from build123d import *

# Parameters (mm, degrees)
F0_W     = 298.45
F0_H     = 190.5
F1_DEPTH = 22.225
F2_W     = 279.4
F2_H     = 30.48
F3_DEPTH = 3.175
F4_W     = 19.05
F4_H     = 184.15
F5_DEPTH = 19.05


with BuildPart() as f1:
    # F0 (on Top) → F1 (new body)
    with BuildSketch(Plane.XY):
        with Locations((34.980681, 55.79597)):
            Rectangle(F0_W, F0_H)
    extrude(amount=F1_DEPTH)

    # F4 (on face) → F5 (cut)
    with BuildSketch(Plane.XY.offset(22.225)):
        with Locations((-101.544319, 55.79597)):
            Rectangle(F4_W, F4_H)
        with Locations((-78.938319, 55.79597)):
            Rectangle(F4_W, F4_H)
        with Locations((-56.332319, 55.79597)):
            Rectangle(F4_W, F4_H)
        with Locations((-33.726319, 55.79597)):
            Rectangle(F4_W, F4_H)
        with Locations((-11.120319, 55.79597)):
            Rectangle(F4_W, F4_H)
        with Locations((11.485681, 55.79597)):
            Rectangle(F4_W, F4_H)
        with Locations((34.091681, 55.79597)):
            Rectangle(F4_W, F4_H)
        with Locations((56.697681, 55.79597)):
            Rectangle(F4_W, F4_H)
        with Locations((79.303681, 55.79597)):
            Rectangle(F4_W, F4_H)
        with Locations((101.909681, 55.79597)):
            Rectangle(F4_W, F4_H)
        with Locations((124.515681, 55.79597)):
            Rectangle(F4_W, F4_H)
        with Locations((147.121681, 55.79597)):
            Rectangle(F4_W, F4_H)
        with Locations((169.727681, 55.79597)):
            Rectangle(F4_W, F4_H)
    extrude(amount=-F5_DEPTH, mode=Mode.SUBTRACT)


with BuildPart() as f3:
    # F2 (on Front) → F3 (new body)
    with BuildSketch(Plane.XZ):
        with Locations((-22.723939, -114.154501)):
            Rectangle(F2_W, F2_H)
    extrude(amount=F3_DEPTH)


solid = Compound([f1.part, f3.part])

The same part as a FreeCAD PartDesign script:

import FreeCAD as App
import Part
import Sketcher
Q = App.Units.Quantity


def add_polygon(sketch, points):
    """Adds a closed chain of lines whose ends are joined by coincident constraints."""
    first, n = sketch.GeometryCount, len(points)
    for a, b in zip(points, points[1:] + points[:1]):
        sketch.addGeometry(Part.LineSegment(App.Vector(*a, 0), App.Vector(*b, 0)), False)
    for i in range(n):
        sketch.addConstraint(Sketcher.Constraint("Coincident", first + i, 2, first + (i + 1) % n, 1))

doc = App.newDocument("Part")
body = doc.addObject("PartDesign::Body", "Body")

# Sketch on XY plane
sketch1 = body.newObject("Sketcher::SketchObject", "Sketch")
sketch1.AttachmentSupport = (doc.getObject("XY_Plane"), [""])
sketch1.MapMode = "FlatFace"
add_polygon(sketch1, [(-114, 151), (-114, -39), (184, -39), (184, 151)])  # lines 0-3
sketch1.addConstraint(Sketcher.Constraint("Vertical", 0))
sketch1.addConstraint(Sketcher.Constraint("Horizontal", 1))
sketch1.addConstraint(Sketcher.Constraint("Vertical", 2))
sketch1.addConstraint(Sketcher.Constraint("Horizontal", 3))
sketch1.addConstraint(Sketcher.Constraint("DistanceY", 0, 2, 0, 1, Q("7.5 in")))
sketch1.addConstraint(Sketcher.Constraint("DistanceX", 1, 1, 1, 2, Q("11.75 in")))
sketch1.addConstraint(Sketcher.Constraint("DistanceX", 0, 2, -1, 1, Q("114.244319 mm")))
sketch1.addConstraint(Sketcher.Constraint("DistanceY", 0, 2, -1, 1, Q("39.45403 mm")))
pad1 = body.newObject("PartDesign::Pad", "Pad")
pad1.Profile = sketch1
pad1.Length = Q("0.875 in")

# Sketch on XY plane
sketch2 = body.newObject("Sketcher::SketchObject", "Sketch001")
sketch2.AttachmentSupport = (doc.getObject("XY_Plane"), [""])
sketch2.MapMode = "FlatFace"
sketch2.AttachmentOffset = App.Placement(App.Vector(0, 0, 0.875 * 25.4), App.Rotation())
add_polygon(sketch2, [(-111, 148), (-111, -36), (-92, -36), (-92, 148)])  # lines 0-3
add_polygon(sketch2, [(-88, 148), (-88, -36), (-69, -36), (-69, 148)])  # lines 4-7
add_polygon(sketch2, [(-66, 148), (-66, -36), (-47, -36), (-47, 148)])  # lines 8-11
add_polygon(sketch2, [(-43, 148), (-43, -36), (-24, -36), (-24, 148)])  # lines 12-15
add_polygon(sketch2, [(-21, 148), (-21, -36), (-2, -36), (-2, 148)])  # lines 16-19
add_polygon(sketch2, [(2, 148), (2, -36), (21, -36), (21, 148)])  # lines 20-23
add_polygon(sketch2, [(25, 148), (25, -36), (44, -36), (44, 148)])  # lines 24-27
add_polygon(sketch2, [(47, 148), (47, -36), (66, -36), (66, 148)])  # lines 28-31
add_polygon(sketch2, [(70, 148), (70, -36), (89, -36), (89, 148)])  # lines 32-35
add_polygon(sketch2, [(92, 148), (92, -36), (111, -36), (111, 148)])  # lines 36-39
add_polygon(sketch2, [(115, 148), (115, -36), (134, -36), (134, 148)])  # lines 40-43
add_polygon(sketch2, [(138, 148), (138, -36), (157, -36), (157, 148)])  # lines 44-47
add_polygon(sketch2, [(160, 148), (160, -36), (179, -36), (179, 148)])  # lines 48-51
sketch2.addConstraint(Sketcher.Constraint("Vertical", 0))
sketch2.addConstraint(Sketcher.Constraint("Horizontal", 1))
sketch2.addConstraint(Sketcher.Constraint("Vertical", 2))
sketch2.addConstraint(Sketcher.Constraint("Horizontal", 3))
sketch2.addConstraint(Sketcher.Constraint("Vertical", 4))
sketch2.addConstraint(Sketcher.Constraint("Horizontal", 5))
sketch2.addConstraint(Sketcher.Constraint("Vertical", 6))
sketch2.addConstraint(Sketcher.Constraint("Horizontal", 7))
sketch2.addConstraint(Sketcher.Constraint("Vertical", 8))
sketch2.addConstraint(Sketcher.Constraint("Horizontal", 9))
sketch2.addConstraint(Sketcher.Constraint("Vertical", 10))
sketch2.addConstraint(Sketcher.Constraint("Horizontal", 11))
sketch2.addConstraint(Sketcher.Constraint("Vertical", 12))
sketch2.addConstraint(Sketcher.Constraint("Horizontal", 13))
sketch2.addConstraint(Sketcher.Constraint("Vertical", 14))
sketch2.addConstraint(Sketcher.Constraint("Horizontal", 15))
sketch2.addConstraint(Sketcher.Constraint("Vertical", 16))
sketch2.addConstraint(Sketcher.Constraint("Horizontal", 17))
sketch2.addConstraint(Sketcher.Constraint("Vertical", 18))
sketch2.addConstraint(Sketcher.Constraint("Horizontal", 19))
sketch2.addConstraint(Sketcher.Constraint("Vertical", 20))
sketch2.addConstraint(Sketcher.Constraint("Horizontal", 21))
sketch2.addConstraint(Sketcher.Constraint("Vertical", 22))
sketch2.addConstraint(Sketcher.Constraint("Horizontal", 23))
sketch2.addConstraint(Sketcher.Constraint("Vertical", 24))
sketch2.addConstraint(Sketcher.Constraint("Horizontal", 25))
sketch2.addConstraint(Sketcher.Constraint("Vertical", 26))
sketch2.addConstraint(Sketcher.Constraint("Horizontal", 27))
sketch2.addConstraint(Sketcher.Constraint("Vertical", 28))
sketch2.addConstraint(Sketcher.Constraint("Horizontal", 29))
sketch2.addConstraint(Sketcher.Constraint("Vertical", 30))
sketch2.addConstraint(Sketcher.Constraint("Horizontal", 31))
sketch2.addConstraint(Sketcher.Constraint("Vertical", 32))
sketch2.addConstraint(Sketcher.Constraint("Horizontal", 33))
sketch2.addConstraint(Sketcher.Constraint("Vertical", 34))
sketch2.addConstraint(Sketcher.Constraint("Horizontal", 35))
sketch2.addConstraint(Sketcher.Constraint("Vertical", 36))
sketch2.addConstraint(Sketcher.Constraint("Horizontal", 37))
sketch2.addConstraint(Sketcher.Constraint("Vertical", 38))
sketch2.addConstraint(Sketcher.Constraint("Horizontal", 39))
sketch2.addConstraint(Sketcher.Constraint("Vertical", 40))
sketch2.addConstraint(Sketcher.Constraint("Horizontal", 41))
sketch2.addConstraint(Sketcher.Constraint("Vertical", 42))
sketch2.addConstraint(Sketcher.Constraint("Horizontal", 43))
sketch2.addConstraint(Sketcher.Constraint("Vertical", 44))
sketch2.addConstraint(Sketcher.Constraint("Horizontal", 45))
sketch2.addConstraint(Sketcher.Constraint("Vertical", 46))
sketch2.addConstraint(Sketcher.Constraint("Horizontal", 47))
sketch2.addConstraint(Sketcher.Constraint("Vertical", 48))
sketch2.addConstraint(Sketcher.Constraint("Horizontal", 49))
sketch2.addConstraint(Sketcher.Constraint("Vertical", 50))
sketch2.addConstraint(Sketcher.Constraint("Horizontal", 51))
sketch2.addConstraint(Sketcher.Constraint("Horizontal", 1, 2, 4, 2))
sketch2.addConstraint(Sketcher.Constraint("Horizontal", 3, 2, 6, 2))
sketch2.addConstraint(Sketcher.Constraint("Horizontal", 5, 2, 8, 2))
sketch2.addConstraint(Sketcher.Constraint("Horizontal", 7, 2, 10, 2))
sketch2.addConstraint(Sketcher.Constraint("Horizontal", 9, 2, 12, 2))
sketch2.addConstraint(Sketcher.Constraint("Horizontal", 11, 2, 14, 2))
sketch2.addConstraint(Sketcher.Constraint("Horizontal", 13, 2, 16, 2))
sketch2.addConstraint(Sketcher.Constraint("Horizontal", 15, 2, 18, 2))
sketch2.addConstraint(Sketcher.Constraint("Horizontal", 17, 2, 20, 2))
sketch2.addConstraint(Sketcher.Constraint("Horizontal", 19, 2, 22, 2))
sketch2.addConstraint(Sketcher.Constraint("Horizontal", 21, 2, 24, 2))
sketch2.addConstraint(Sketcher.Constraint("Horizontal", 23, 2, 26, 2))
sketch2.addConstraint(Sketcher.Constraint("Horizontal", 25, 2, 28, 2))
sketch2.addConstraint(Sketcher.Constraint("Horizontal", 27, 2, 30, 2))
sketch2.addConstraint(Sketcher.Constraint("Horizontal", 29, 2, 32, 2))
sketch2.addConstraint(Sketcher.Constraint("Horizontal", 31, 2, 34, 2))
sketch2.addConstraint(Sketcher.Constraint("Horizontal", 33, 2, 36, 2))
sketch2.addConstraint(Sketcher.Constraint("Horizontal", 35, 2, 38, 2))
sketch2.addConstraint(Sketcher.Constraint("Horizontal", 37, 2, 40, 2))
sketch2.addConstraint(Sketcher.Constraint("Horizontal", 39, 2, 42, 2))
sketch2.addConstraint(Sketcher.Constraint("Horizontal", 41, 2, 44, 2))
sketch2.addConstraint(Sketcher.Constraint("Horizontal", 43, 2, 46, 2))
sketch2.addConstraint(Sketcher.Constraint("Horizontal", 45, 2, 48, 2))
sketch2.addConstraint(Sketcher.Constraint("Horizontal", 47, 2, 50, 2))
sketch2.addConstraint(Sketcher.Constraint("Equal", 3, 5))
sketch2.addConstraint(Sketcher.Constraint("Equal", 7, 9))
sketch2.addConstraint(Sketcher.Constraint("Equal", 11, 13))
sketch2.addConstraint(Sketcher.Constraint("Equal", 15, 17))
sketch2.addConstraint(Sketcher.Constraint("Equal", 19, 21))
sketch2.addConstraint(Sketcher.Constraint("Equal", 23, 25))
sketch2.addConstraint(Sketcher.Constraint("Equal", 27, 29))
sketch2.addConstraint(Sketcher.Constraint("Equal", 31, 33))
sketch2.addConstraint(Sketcher.Constraint("Equal", 35, 37))
sketch2.addConstraint(Sketcher.Constraint("Equal", 39, 41))
sketch2.addConstraint(Sketcher.Constraint("Equal", 43, 45))
sketch2.addConstraint(Sketcher.Constraint("Equal", 47, 49))
sketch2.addConstraint(Sketcher.Constraint("DistanceX", 1, 1, 1, 2, Q("0.75 in")))
sketch2.addConstraint(Sketcher.Constraint("DistanceY", 0, 2, 0, 1, Q("7.25 in")))
sketch2.addConstraint(Sketcher.Constraint("DistanceX", 1, 2, 4, 2, Q("0.14 in")))
sketch2.addConstraint(Sketcher.Constraint("DistanceX", 5, 2, 8, 2, Q("0.14 in")))
sketch2.addConstraint(Sketcher.Constraint("DistanceX", 9, 2, 12, 2, Q("0.14 in")))
sketch2.addConstraint(Sketcher.Constraint("DistanceX", 13, 2, 16, 2, Q("0.14 in")))
sketch2.addConstraint(Sketcher.Constraint("DistanceX", 17, 2, 20, 2, Q("0.14 in")))
sketch2.addConstraint(Sketcher.Constraint("DistanceX", 21, 2, 24, 2, Q("0.14 in")))
sketch2.addConstraint(Sketcher.Constraint("DistanceX", 25, 2, 28, 2, Q("0.14 in")))
sketch2.addConstraint(Sketcher.Constraint("DistanceX", 29, 2, 32, 2, Q("0.14 in")))
sketch2.addConstraint(Sketcher.Constraint("DistanceX", 33, 2, 36, 2, Q("0.14 in")))
sketch2.addConstraint(Sketcher.Constraint("DistanceX", 37, 2, 40, 2, Q("0.14 in")))
sketch2.addConstraint(Sketcher.Constraint("DistanceX", 41, 2, 44, 2, Q("0.14 in")))
sketch2.addConstraint(Sketcher.Constraint("DistanceX", 45, 2, 48, 2, Q("0.14 in")))
sketch2.addConstraint(Sketcher.Constraint("DistanceX", 0, 2, -1, 1, Q("111.069319 mm")))
sketch2.addConstraint(Sketcher.Constraint("DistanceY", 0, 2, -1, 1, Q("36.27903 mm")))
pocket1 = body.newObject("PartDesign::Pocket", "Pocket")
pocket1.Profile = sketch2
pocket1.Length = Q("0.75 in")
body2 = doc.addObject("PartDesign::Body", "Body001")

# Sketch on XZ plane
sketch3 = body2.newObject("Sketcher::SketchObject", "Sketch002")
sketch3.AttachmentSupport = (doc.getObject("XZ_Plane001"), [""])
sketch3.MapMode = "FlatFace"
add_polygon(sketch3, [(-162, -99), (-162, -129), (117, -129), (117, -99)])  # lines 0-3
sketch3.addConstraint(Sketcher.Constraint("Vertical", 0))
sketch3.addConstraint(Sketcher.Constraint("Horizontal", 1))
sketch3.addConstraint(Sketcher.Constraint("Vertical", 2))
sketch3.addConstraint(Sketcher.Constraint("Horizontal", 3))
sketch3.addConstraint(Sketcher.Constraint("DistanceX", 1, 1, 1, 2, Q("11 in")))
sketch3.addConstraint(Sketcher.Constraint("DistanceY", 0, 2, 0, 1, Q("1.2 in")))
sketch3.addConstraint(Sketcher.Constraint("DistanceY", 0, 2, -1, 1, Q("129.394501 mm")))
sketch3.addConstraint(Sketcher.Constraint("DistanceX", 0, 2, -1, 1, Q("162.423939 mm")))
pad2 = body2.newObject("PartDesign::Pad", "Pad001")
pad2.Profile = sketch3
pad2.Length = Q("0.125 in")

doc.recompute()
